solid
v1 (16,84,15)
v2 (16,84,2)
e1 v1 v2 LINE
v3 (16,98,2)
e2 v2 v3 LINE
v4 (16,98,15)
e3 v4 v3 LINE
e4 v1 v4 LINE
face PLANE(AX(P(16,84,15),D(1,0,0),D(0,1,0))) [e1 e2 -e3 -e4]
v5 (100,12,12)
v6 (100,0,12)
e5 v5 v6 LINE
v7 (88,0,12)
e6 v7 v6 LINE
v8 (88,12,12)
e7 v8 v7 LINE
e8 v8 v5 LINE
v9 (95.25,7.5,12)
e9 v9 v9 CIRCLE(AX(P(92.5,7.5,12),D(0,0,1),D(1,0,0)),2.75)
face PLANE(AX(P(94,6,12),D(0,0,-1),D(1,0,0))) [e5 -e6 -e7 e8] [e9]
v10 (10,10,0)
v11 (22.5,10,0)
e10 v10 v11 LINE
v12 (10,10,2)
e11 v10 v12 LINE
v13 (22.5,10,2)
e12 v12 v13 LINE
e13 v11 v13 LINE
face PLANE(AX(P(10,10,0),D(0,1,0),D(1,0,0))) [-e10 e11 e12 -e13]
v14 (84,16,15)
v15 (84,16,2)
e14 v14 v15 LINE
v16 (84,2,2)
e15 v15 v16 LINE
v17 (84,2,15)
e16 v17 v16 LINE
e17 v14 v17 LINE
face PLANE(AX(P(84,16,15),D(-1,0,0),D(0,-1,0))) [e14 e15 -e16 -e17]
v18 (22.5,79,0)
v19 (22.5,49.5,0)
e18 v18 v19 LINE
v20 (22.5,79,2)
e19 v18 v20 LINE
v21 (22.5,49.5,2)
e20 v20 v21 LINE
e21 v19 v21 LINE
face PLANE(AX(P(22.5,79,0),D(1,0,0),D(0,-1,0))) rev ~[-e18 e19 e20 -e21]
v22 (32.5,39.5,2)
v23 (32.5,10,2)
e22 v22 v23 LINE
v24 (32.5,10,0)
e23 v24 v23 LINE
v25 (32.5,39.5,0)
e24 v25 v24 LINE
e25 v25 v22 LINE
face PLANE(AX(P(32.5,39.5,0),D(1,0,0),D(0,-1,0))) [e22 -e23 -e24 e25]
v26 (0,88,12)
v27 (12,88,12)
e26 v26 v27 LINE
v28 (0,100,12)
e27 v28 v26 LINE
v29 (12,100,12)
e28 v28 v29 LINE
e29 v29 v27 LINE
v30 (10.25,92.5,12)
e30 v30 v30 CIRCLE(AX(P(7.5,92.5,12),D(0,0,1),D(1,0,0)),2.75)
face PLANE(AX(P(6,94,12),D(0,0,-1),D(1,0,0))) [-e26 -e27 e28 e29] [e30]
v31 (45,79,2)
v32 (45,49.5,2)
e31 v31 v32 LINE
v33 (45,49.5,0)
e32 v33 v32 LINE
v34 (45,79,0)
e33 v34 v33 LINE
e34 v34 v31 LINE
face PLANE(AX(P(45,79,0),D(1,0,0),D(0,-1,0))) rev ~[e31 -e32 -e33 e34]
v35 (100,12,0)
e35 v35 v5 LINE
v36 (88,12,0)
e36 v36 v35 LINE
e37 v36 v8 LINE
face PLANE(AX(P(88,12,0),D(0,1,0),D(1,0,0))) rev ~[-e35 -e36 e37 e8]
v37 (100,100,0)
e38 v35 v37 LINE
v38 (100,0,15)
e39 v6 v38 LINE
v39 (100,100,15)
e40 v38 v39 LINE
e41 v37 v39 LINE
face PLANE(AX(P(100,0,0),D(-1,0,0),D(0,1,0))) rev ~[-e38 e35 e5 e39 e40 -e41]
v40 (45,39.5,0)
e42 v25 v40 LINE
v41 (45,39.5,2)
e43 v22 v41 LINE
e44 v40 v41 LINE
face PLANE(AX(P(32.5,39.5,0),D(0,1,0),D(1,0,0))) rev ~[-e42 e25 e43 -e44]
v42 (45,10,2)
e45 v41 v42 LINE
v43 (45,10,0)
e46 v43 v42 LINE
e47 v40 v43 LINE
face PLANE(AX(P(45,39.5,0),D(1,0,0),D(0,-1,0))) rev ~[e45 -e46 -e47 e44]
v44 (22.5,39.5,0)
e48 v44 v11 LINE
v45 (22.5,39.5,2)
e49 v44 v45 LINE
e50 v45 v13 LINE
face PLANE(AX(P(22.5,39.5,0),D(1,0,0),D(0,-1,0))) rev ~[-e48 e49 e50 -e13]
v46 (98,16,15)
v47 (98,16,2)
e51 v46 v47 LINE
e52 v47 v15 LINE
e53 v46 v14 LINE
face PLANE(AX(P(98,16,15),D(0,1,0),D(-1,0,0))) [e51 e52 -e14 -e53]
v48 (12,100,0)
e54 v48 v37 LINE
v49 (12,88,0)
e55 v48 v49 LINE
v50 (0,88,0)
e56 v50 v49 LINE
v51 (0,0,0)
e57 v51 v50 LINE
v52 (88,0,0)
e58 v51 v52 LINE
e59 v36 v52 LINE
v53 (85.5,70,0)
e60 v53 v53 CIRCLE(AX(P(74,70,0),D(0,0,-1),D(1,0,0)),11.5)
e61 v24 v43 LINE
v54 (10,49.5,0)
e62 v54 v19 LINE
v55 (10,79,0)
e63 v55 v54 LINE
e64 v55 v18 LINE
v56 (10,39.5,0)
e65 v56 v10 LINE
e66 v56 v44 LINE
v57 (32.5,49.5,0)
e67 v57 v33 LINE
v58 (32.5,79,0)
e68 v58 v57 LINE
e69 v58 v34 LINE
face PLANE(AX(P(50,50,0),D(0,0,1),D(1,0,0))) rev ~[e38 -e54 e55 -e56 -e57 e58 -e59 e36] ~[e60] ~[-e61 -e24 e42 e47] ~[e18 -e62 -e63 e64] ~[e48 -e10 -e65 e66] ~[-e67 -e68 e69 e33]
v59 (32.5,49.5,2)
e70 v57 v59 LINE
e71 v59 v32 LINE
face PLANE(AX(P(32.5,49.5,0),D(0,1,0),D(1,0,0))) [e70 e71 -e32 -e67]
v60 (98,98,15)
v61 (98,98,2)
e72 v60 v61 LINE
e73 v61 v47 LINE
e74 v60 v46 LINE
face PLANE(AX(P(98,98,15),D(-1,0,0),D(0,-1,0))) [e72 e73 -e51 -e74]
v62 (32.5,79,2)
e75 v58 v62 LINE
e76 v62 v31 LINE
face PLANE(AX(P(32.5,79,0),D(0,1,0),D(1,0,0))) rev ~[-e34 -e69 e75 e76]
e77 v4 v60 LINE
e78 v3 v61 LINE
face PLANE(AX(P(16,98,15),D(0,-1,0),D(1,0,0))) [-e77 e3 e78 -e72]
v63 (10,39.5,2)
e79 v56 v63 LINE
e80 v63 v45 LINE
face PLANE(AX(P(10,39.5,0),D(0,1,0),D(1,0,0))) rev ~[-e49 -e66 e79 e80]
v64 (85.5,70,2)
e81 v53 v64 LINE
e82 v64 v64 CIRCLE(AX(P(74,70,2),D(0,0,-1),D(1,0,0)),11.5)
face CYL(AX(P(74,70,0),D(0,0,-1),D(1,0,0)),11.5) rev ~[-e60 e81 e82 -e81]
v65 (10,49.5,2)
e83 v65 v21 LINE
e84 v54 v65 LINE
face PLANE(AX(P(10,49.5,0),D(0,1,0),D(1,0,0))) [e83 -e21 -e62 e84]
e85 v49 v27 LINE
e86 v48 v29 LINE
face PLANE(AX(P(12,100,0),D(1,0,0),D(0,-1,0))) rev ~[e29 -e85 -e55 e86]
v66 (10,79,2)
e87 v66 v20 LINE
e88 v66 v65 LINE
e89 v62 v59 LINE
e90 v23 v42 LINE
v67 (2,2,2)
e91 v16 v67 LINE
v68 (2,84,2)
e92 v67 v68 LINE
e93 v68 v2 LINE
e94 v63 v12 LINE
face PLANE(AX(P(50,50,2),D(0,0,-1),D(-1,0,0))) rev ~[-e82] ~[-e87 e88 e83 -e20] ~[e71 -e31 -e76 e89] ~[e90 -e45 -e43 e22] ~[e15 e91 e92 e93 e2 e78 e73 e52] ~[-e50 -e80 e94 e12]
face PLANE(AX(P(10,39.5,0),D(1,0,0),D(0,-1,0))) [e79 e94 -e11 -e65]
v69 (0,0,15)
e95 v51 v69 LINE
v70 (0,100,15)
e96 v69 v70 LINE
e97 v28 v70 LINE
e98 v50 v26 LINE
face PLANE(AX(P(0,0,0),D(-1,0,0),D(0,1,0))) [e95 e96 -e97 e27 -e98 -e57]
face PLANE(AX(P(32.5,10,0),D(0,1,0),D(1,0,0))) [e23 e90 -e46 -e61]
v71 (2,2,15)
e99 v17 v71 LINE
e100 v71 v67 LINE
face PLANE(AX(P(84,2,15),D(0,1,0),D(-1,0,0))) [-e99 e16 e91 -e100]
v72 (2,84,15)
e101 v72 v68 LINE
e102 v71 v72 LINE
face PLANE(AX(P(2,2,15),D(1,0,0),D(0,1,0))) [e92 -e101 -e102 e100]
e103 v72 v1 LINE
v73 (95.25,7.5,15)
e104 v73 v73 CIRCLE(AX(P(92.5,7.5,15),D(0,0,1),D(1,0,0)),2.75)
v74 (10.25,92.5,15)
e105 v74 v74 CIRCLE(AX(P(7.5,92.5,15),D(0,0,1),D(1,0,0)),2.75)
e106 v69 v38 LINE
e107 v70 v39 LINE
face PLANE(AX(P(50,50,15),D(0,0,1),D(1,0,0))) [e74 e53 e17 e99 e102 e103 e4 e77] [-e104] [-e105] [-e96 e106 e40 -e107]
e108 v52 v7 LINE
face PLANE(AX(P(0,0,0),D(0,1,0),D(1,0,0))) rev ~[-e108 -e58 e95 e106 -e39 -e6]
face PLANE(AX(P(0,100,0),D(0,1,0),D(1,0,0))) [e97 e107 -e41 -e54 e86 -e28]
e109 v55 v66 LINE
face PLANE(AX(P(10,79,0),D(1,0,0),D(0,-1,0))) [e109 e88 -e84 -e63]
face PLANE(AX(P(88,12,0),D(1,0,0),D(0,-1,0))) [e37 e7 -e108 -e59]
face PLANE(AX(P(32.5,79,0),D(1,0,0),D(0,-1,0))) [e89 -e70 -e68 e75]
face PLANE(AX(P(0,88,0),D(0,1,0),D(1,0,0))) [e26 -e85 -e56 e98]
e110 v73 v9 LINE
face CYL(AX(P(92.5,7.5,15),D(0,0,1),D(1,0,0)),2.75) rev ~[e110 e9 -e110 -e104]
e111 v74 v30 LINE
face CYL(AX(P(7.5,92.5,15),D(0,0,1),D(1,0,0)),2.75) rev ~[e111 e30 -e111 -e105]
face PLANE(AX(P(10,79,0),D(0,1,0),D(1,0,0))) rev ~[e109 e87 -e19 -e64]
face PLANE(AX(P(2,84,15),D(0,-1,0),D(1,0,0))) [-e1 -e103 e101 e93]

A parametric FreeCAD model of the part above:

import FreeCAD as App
import Part
import Sketcher
from FreeCAD import Vector
Q = App.Units.Quantity

doc = App.newDocument("Part")
body = doc.addObject("PartDesign::Body", "Body")

# Sketch on XY plane
sketch1 = doc.addObject("Sketcher::SketchObject", "Sketch")
body.addObject(sketch1)
sketch1.AttachmentSupport = (doc.XY_Plane, [""])
sketch1.MapMode = "FlatFace"
sketch1.addGeometry([
    Part.LineSegment(Vector(0, 100, 0), Vector(0, 0, 0)),
    Part.LineSegment(Vector(0, 0, 0), Vector(100, 0, 0)),
    Part.LineSegment(Vector(100, 0, 0), Vector(100, 100, 0)),
    Part.LineSegment(Vector(100, 100, 0), Vector(0, 100, 0)),
], False)
sketch1.addConstraint([
    Sketcher.Constraint("Coincident", 0, 2, 1, 1),
    Sketcher.Constraint("Coincident", 1, 2, 2, 1),
    Sketcher.Constraint("Coincident", 2, 2, 3, 1),
    Sketcher.Constraint("Coincident", 3, 2, 0, 1),
    Sketcher.Constraint("Vertical", 0),
    Sketcher.Constraint("Horizontal", 1),
    Sketcher.Constraint("Vertical", 2),
    Sketcher.Constraint("Horizontal", 3),
    Sketcher.Constraint("Coincident", 0, 2, -1, 1),
    Sketcher.Constraint("Equal", 3, 0),
    Sketcher.Constraint("DistanceX", 1, 1, 1, 2, Q("100 mm")),
])
pad1 = doc.addObject("PartDesign::Pad", "Pad")
body.addObject(pad1)
pad1.Profile = sketch1
pad1.Length = 15

# Sketch on XY plane
sketch2 = doc.addObject("Sketcher::SketchObject", "Sketch001")
body.addObject(sketch2)
sketch2.AttachmentSupport = (doc.XY_Plane, [""])
sketch2.MapMode = "FlatFace"
sketch2.AttachmentOffset = App.Placement(Vector(0, 0, 15), App.Rotation())
sketch2.addGeometry([
    Part.LineSegment(Vector(2, 84, 0), Vector(2, 2, 0)),  # 0
    Part.LineSegment(Vector(2, 2, 0), Vector(84, 2, 0)),  # 1
    Part.LineSegment(Vector(84, 2, 0), Vector(84, 16, 0)),  # 2
    Part.LineSegment(Vector(84, 16, 0), Vector(98, 16, 0)),  # 3
    Part.LineSegment(Vector(98, 16, 0), Vector(98, 98, 0)),  # 4
    Part.LineSegment(Vector(98, 98, 0), Vector(16, 98, 0)),  # 5
    Part.LineSegment(Vector(16, 98, 0), Vector(16, 84, 0)),  # 6
    Part.LineSegment(Vector(16, 84, 0), Vector(2, 84, 0)),  # 7
], False)
sketch2.addConstraint([
    Sketcher.Constraint("Coincident", 0, 2, 1, 1),
    Sketcher.Constraint("Coincident", 1, 2, 2, 1),
    Sketcher.Constraint("Coincident", 2, 2, 3, 1),
    Sketcher.Constraint("Coincident", 3, 2, 4, 1),
    Sketcher.Constraint("Coincident", 4, 2, 5, 1),
    Sketcher.Constraint("Coincident", 5, 2, 6, 1),
    Sketcher.Constraint("Coincident", 6, 2, 7, 1),
    Sketcher.Constraint("Coincident", 7, 2, 0, 1),
    Sketcher.Constraint("Vertical", 0),
    Sketcher.Constraint("Horizontal", 1),
    Sketcher.Constraint("Vertical", 2),
    Sketcher.Constraint("Horizontal", 3),
    Sketcher.Constraint("Vertical", 4),
    Sketcher.Constraint("Horizontal", 5),
    Sketcher.Constraint("Vertical", 6),
    Sketcher.Constraint("Horizontal", 7),
    Sketcher.Constraint("Equal", 1, 5),
    Sketcher.Constraint("Equal", 5, 0),
    Sketcher.Constraint("Equal", 7, 2),
    Sketcher.Constraint("Equal", 0, 4),
    Sketcher.Constraint("DistanceX", 1, 1, 1, 2, Q("82 mm")),
    Sketcher.Constraint("DistanceX", 3, 1, 3, 2, Q("14 mm")),
    Sketcher.Constraint("DistanceX", -1, 1, 0, 2, Q("2 mm")),
    Sketcher.Constraint("DistanceY", -1, 1, 0, 2, Q("2 mm")),
])
pocket1 = doc.addObject("PartDesign::Pocket", "Pocket")
body.addObject(pocket1)
pocket1.Profile = sketch2
pocket1.Length = 13

# Sketch on XY plane
sketch3 = doc.addObject("Sketcher::SketchObject", "Sketch002")
body.addObject(sketch3)
sketch3.AttachmentSupport = (doc.XY_Plane, [""])
sketch3.MapMode = "FlatFace"
sketch3.addGeometry([
    Part.LineSegment(Vector(88, 0, 0), Vector(88, 12, 0)),  # 0
    Part.LineSegment(Vector(88, 12, 0), Vector(100, 12, 0)),  # 1
    Part.LineSegment(Vector(100, 12, 0), Vector(100, 0, 0)),  # 2
    Part.LineSegment(Vector(100, 0, 0), Vector(88, 0, 0)),  # 3
    Part.LineSegment(Vector(0, 88, 0), Vector(0, 100, 0)),  # 4
    Part.LineSegment(Vector(0, 100, 0), Vector(12, 100, 0)),  # 5
    Part.LineSegment(Vector(12, 100, 0), Vector(12, 88, 0)),  # 6
    Part.LineSegment(Vector(12, 88, 0), Vector(0, 88, 0)),  # 7
], False)
sketch3.addConstraint([
    Sketcher.Constraint("Coincident", 0, 2, 1, 1),
    Sketcher.Constraint("Coincident", 1, 2, 2, 1),
    Sketcher.Constraint("Coincident", 2, 2, 3, 1),
    Sketcher.Constraint("Coincident", 3, 2, 0, 1),
    Sketcher.Constraint("Coincident", 4, 2, 5, 1),
    Sketcher.Constraint("Coincident", 5, 2, 6, 1),
    Sketcher.Constraint("Coincident", 6, 2, 7, 1),
    Sketcher.Constraint("Coincident", 7, 2, 4, 1),
    Sketcher.Constraint("Vertical", 0),
    Sketcher.Constraint("Horizontal", 1),
    Sketcher.Constraint("Vertical", 2),
    Sketcher.Constraint("Horizontal", 3),
    Sketcher.Constraint("Vertical", 4),
    Sketcher.Constraint("Horizontal", 5),
    Sketcher.Constraint("Vertical", 6),
    Sketcher.Constraint("Horizontal", 7),
    Sketcher.Constraint("PointOnObject", 2, 2, -1),
    Sketcher.Constraint("PointOnObject", 4, 2, -2),
    Sketcher.Constraint("Equal", 3, 5),
    Sketcher.Constraint("Equal", 7, 0),
    Sketcher.Constraint("Equal", 2, 4),
    Sketcher.Constraint("DistanceX", 1, 1, 1, 2, Q("12 mm")),
    Sketcher.Constraint("DistanceX", -1, 1, 0, 2, Q("88 mm")),
    Sketcher.Constraint("DistanceY", -1, 1, 4, 2, Q("100 mm")),
])
pocket2 = doc.addObject("PartDesign::Pocket", "Pocket001")
body.addObject(pocket2)
pocket2.Profile = sketch3
pocket2.Length = 12
pocket2.Reversed = True

# Sketch on XY plane
sketch4 = doc.addObject("Sketcher::SketchObject", "Sketch003")
body.addObject(sketch4)
sketch4.AttachmentSupport = (doc.XY_Plane, [""])
sketch4.MapMode = "FlatFace"
sketch4.AttachmentOffset = App.Placement(Vector(0, 0, 15), App.Rotation())
sketch4.addGeometry([
    Part.Circle(Vector(7.5, 92.5, 0), Vector(0, 0, 1), 2.8),
    Part.Circle(Vector(92.5, 7.5, 0), Vector(0, 0, 1), 2.8),
], False)
sketch4.addConstraint([
    Sketcher.Constraint("Equal", 0, 1),
    Sketcher.Constraint("Diameter", 0, Q("5.5 mm")),
    Sketcher.Constraint("DistanceX", 0, 3, 1, 3, Q("85 mm")),
    Sketcher.Constraint("DistanceY", 1, 3, 0, 3, Q("85 mm")),
    Sketcher.Constraint("DistanceX", -1, 1, 0, 3, Q("7.5 mm")),
    Sketcher.Constraint("DistanceY", -1, 1, 0, 3, Q("92.5 mm")),
])
pocket3 = doc.addObject("PartDesign::Pocket", "Pocket002")
body.addObject(pocket3)
pocket3.Profile = sketch4
pocket3.Length = 3

# Sketch on XY plane
sketch5 = doc.addObject("Sketcher::SketchObject", "Sketch004")
body.addObject(sketch5)
sketch5.AttachmentSupport = (doc.XY_Plane, [""])
sketch5.MapMode = "FlatFace"
sketch5.addGeometry([
    Part.Circle(Vector(74, 70, 0), Vector(0, 0, 1), 12),  # 0
    Part.LineSegment(Vector(10, 10, 0), Vector(10, 40, 0)),  # 1
    Part.LineSegment(Vector(10, 40, 0), Vector(22, 40, 0)),  # 2
    Part.LineSegment(Vector(22, 40, 0), Vector(22, 10, 0)),  # 3
    Part.LineSegment(Vector(22, 10, 0), Vector(10, 10, 0)),  # 4
    Part.LineSegment(Vector(10, 50, 0), Vector(10, 79, 0)),  # 5
    Part.LineSegment(Vector(10, 79, 0), Vector(22, 79, 0)),  # 6
    Part.LineSegment(Vector(22, 79, 0), Vector(22, 50, 0)),  # 7
    Part.LineSegment(Vector(22, 50, 0), Vector(10, 50, 0)),  # 8
    Part.LineSegment(Vector(32, 10, 0), Vector(32, 40, 0)),  # 9
    Part.LineSegment(Vector(32, 40, 0), Vector(45, 40, 0)),  # 10
    Part.LineSegment(Vector(45, 40, 0), Vector(45, 10, 0)),  # 11
    Part.LineSegment(Vector(45, 10, 0), Vector(32, 10, 0)),  # 12
    Part.LineSegment(Vector(32, 50, 0), Vector(32, 79, 0)),  # 13
    Part.LineSegment(Vector(32, 79, 0), Vector(45, 79, 0)),  # 14
    Part.LineSegment(Vector(45, 79, 0), Vector(45, 50, 0)),  # 15
    Part.LineSegment(Vector(45, 50, 0), Vector(32, 50, 0)),  # 16
], False)
sketch5.addConstraint([
    Sketcher.Constraint("Coincident", 1, 2, 2, 1),
    Sketcher.Constraint("Coincident", 2, 2, 3, 1),
    Sketcher.Constraint("Coincident", 3, 2, 4, 1),
    Sketcher.Constraint("Coincident", 4, 2, 1, 1),
    Sketcher.Constraint("Coincident", 5, 2, 6, 1),
    Sketcher.Constraint("Coincident", 6, 2, 7, 1),
    Sketcher.Constraint("Coincident", 7, 2, 8, 1),
    Sketcher.Constraint("Coincident", 8, 2, 5, 1),
    Sketcher.Constraint("Coincident", 9, 2, 10, 1),
    Sketcher.Constraint("Coincident", 10, 2, 11, 1),
    Sketcher.Constraint("Coincident", 11, 2, 12, 1),
    Sketcher.Constraint("Coincident", 12, 2, 9, 1),
    Sketcher.Constraint("Coincident", 13, 2, 14, 1),
    Sketcher.Constraint("Coincident", 14, 2, 15, 1),
    Sketcher.Constraint("Coincident", 15, 2, 16, 1),
    Sketcher.Constraint("Coincident", 16, 2, 13, 1),
    Sketcher.Constraint("Vertical", 1),
    Sketcher.Constraint("Horizontal", 2),
    Sketcher.Constraint("Vertical", 3),
    Sketcher.Constraint("Horizontal", 4),
    Sketcher.Constraint("Vertical", 5),
    Sketcher.Constraint("Horizontal", 6),
    Sketcher.Constraint("Vertical", 7),
    Sketcher.Constraint("Horizontal", 8),
    Sketcher.Constraint("Vertical", 9),
    Sketcher.Constraint("Horizontal", 10),
    Sketcher.Constraint("Vertical", 11),
    Sketcher.Constraint("Horizontal", 12),
    Sketcher.Constraint("Vertical", 13),
    Sketcher.Constraint("Horizontal", 14),
    Sketcher.Constraint("Vertical", 15),
    Sketcher.Constraint("Horizontal", 16),
    Sketcher.Constraint("Horizontal", 2, 2, 9, 2),
    Sketcher.Constraint("Horizontal", 4, 2, 11, 2),
    Sketcher.Constraint("Horizontal", 6, 2, 13, 2),
    Sketcher.Constraint("Horizontal", 8, 2, 15, 2),
    Sketcher.Constraint("Vertical", 4, 2, 5, 2),
    Sketcher.Constraint("Vertical", 3, 2, 6, 2),
    Sketcher.Constraint("Vertical", 12, 2, 13, 2),
    Sketcher.Constraint("Vertical", 11, 2, 14, 2),
    Sketcher.Constraint("Equal", 8, 10),
    Sketcher.Constraint("Equal", 3, 5),
    Sketcher.Constraint("Diameter", 0, Q("23 mm")),
    Sketcher.Constraint("DistanceX", 2, 1, 2, 2, Q("12.5 mm")),
    Sketcher.Constraint("DistanceY", 1, 1, 1, 2, Q("29.5 mm")),
    Sketcher.Constraint("DistanceX", -1, 1, 0, 3, Q("74 mm")),
    Sketcher.Constraint("DistanceY", -1, 1, 0, 3, Q("70 mm")),
    Sketcher.Constraint("DistanceX", -1, 1, 1, 2, Q("10 mm")),
    Sketcher.Constraint("DistanceY", -1, 1, 3, 2, Q("10 mm")),
    Sketcher.Constraint("DistanceY", -1, 1, 5, 2, Q("79 mm")),
    Sketcher.Constraint("DistanceX", -1, 1, 10, 2, Q("45 mm")),
])
pocket4 = doc.addObject("PartDesign::Pocket", "Pocket003")
body.addObject(pocket4)
pocket4.Profile = sketch5
pocket4.Length = 3
pocket4.Reversed = True

doc.recompute()
